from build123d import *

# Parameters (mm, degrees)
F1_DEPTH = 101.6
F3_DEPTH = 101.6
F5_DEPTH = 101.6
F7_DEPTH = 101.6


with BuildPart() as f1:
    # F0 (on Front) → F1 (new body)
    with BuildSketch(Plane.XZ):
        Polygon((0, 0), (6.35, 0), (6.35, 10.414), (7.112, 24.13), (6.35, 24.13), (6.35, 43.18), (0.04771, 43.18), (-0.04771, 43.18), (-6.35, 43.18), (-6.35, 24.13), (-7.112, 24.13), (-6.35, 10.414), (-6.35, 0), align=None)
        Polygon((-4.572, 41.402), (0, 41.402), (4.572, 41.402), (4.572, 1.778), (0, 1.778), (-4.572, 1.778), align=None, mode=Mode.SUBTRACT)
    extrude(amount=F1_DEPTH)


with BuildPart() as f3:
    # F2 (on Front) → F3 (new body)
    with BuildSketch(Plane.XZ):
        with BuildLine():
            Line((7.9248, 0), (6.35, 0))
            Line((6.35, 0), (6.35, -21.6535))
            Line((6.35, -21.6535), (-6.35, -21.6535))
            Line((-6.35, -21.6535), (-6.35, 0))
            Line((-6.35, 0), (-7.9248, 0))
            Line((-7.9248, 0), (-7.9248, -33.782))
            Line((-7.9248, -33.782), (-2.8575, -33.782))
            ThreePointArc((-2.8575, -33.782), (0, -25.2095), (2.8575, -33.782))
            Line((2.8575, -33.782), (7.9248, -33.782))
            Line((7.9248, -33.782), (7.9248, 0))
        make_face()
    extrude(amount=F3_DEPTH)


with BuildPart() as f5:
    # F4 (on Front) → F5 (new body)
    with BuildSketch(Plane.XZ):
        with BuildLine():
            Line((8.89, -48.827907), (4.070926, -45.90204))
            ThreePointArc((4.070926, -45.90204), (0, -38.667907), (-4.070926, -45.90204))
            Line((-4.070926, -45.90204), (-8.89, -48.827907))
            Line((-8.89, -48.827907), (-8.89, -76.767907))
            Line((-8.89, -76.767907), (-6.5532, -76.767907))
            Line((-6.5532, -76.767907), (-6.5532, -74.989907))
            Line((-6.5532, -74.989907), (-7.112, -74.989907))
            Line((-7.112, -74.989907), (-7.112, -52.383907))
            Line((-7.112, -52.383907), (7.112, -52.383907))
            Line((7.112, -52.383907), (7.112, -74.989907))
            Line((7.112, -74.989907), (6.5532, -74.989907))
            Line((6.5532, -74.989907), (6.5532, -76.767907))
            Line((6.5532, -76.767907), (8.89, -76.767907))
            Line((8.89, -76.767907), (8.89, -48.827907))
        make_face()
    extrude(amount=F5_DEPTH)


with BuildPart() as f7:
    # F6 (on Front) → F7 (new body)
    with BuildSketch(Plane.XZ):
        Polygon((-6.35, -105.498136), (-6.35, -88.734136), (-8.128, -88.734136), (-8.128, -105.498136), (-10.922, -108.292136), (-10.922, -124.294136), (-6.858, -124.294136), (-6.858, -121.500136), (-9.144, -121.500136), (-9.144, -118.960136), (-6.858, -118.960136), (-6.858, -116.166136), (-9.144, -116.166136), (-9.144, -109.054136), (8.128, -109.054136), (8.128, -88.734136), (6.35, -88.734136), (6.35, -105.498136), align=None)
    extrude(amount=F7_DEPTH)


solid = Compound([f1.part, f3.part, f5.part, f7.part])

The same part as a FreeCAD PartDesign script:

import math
import FreeCAD as App
import Part
import Sketcher
Q = App.Units.Quantity


def add_polygon(sketch, points):
    """Adds a closed chain of lines whose ends are joined by coincident constraints."""
    first, n = sketch.GeometryCount, len(points)
    for a, b in zip(points, points[1:] + points[:1]):
        sketch.addGeometry(Part.LineSegment(App.Vector(*a, 0), App.Vector(*b, 0)), False)
    for i in range(n):
        sketch.addConstraint(Sketcher.Constraint("Coincident", first + i, 2, first + (i + 1) % n, 1))

doc = App.newDocument("Part")
body = doc.addObject("PartDesign::Body", "Body")

sketch1 = body.newObject("Sketcher::SketchObject", "Sketch")
sketch1.AttachmentSupport = (doc.getObject("XZ_Plane"), [""])
sketch1.MapMode = "FlatFace"
add_polygon(sketch1, [(6.35, 0), (6.35, 10.414), (7.112, 24.13), (6.35, 24.13), (6.35, 43.18), (-6.35, 43.18), (-6.35, 24.13), (-7.112, 24.13), (-6.35, 10.414), (-6.35, 0)])
add_polygon(sketch1, [(-4.572, 1.778), (-4.572, 41.402), (4.572, 41.402), (4.572, 1.778)])
sketch1.addConstraint([
    Sketcher.Constraint("Vertical", 0),
    Sketcher.Constraint("Horizontal", 2),
    Sketcher.Constraint("Vertical", 3),
    Sketcher.Constraint("Horizontal", 4),
    Sketcher.Constraint("Vertical", 5),
    Sketcher.Constraint("Horizontal", 6),
    Sketcher.Constraint("Vertical", 8),
    Sketcher.Constraint("Horizontal", 9),
    Sketcher.Constraint("Vertical", 10),
    Sketcher.Constraint("Horizontal", 11),
    Sketcher.Constraint("Vertical", 12),
    Sketcher.Constraint("Horizontal", 13),
    Sketcher.Constraint("Symmetric", 8, 2, 9, 2, -1, 1),
    Sketcher.Constraint("Symmetric", 2, 2, 5, 2, -2),
    Sketcher.Constraint("Horizontal", 0, 2, 7, 2),
    Sketcher.Constraint("Vertical", 0, 2, 2, 2),
    Sketcher.Constraint("Equal", 2, 6),
    Sketcher.Constraint("DistanceX", 4, 2, 4, 1, Q("0.5 in")),
    Sketcher.Constraint("DistanceX", 2, 2, 2, 1, Q("0.03 in")),
    Sketcher.Constraint("DistanceX", 11, 1, 11, 2, Q("0.36 in")),
    Sketcher.Constraint("DistanceY", 0, 1, 0, 2, Q("0.41 in")),
    Sketcher.Constraint("DistanceY", 3, 1, 3, 2, Q("0.75 in")),
    Sketcher.Constraint("DistanceY", 10, 1, 10, 2, Q("1.56 in")),
    Sketcher.Constraint("DistanceY", -1, 1, 3, 2, Q("1.7 in")),
    Sketcher.Constraint("DistanceX", 6, 2, 10, 2, Q("0.1 in")),
    Sketcher.Constraint("DistanceY", -1, 1, 10, 2, Q("1.63 in")),
])
pad1 = body.newObject("PartDesign::Pad", "Pad")
pad1.Profile = sketch1
pad1.Length = Q("4 in")
body2 = doc.addObject("PartDesign::Body", "Body001")

sketch2 = body2.newObject("Sketcher::SketchObject", "Sketch001")
sketch2.AttachmentSupport = (doc.getObject("XZ_Plane001"), [""])
sketch2.MapMode = "FlatFace"
sketch2.addGeometry([
    Part.LineSegment(App.Vector(7.9248, 0, 0), App.Vector(6.35, 0, 0)),
    Part.LineSegment(App.Vector(6.35, 0, 0), App.Vector(6.35, -21.6535, 0)),
    Part.LineSegment(App.Vector(6.35, -21.6535, 0), App.Vector(-6.35, -21.6535, 0)),
    Part.LineSegment(App.Vector(-6.35, -21.6535, 0), App.Vector(-6.35, 0, 0)),
    Part.LineSegment(App.Vector(-6.35, 0, 0), App.Vector(-7.9248, 0, 0)),
    Part.LineSegment(App.Vector(-7.9248, 0, 0), App.Vector(-7.9248, -33.782, 0)),
    Part.LineSegment(App.Vector(-7.9248, -33.782, 0), App.Vector(-2.8575, -33.782, 0)),
    Part.ArcOfCircle(Part.Circle(App.Vector(0, -29.972, 0), App.Vector(0, 0, 1), 4.7625), math.radians(-53.130102), math.radians(233.130102)),
    Part.LineSegment(App.Vector(2.8575, -33.782, 0), App.Vector(7.9248, -33.782, 0)),
    Part.LineSegment(App.Vector(7.9248, -33.782, 0), App.Vector(7.9248, 0, 0)),
], False)
sketch2.addConstraint([
    Sketcher.Constraint("Coincident", 0, 2, 1, 1),
    Sketcher.Constraint("Coincident", 1, 2, 2, 1),
    Sketcher.Constraint("Coincident", 2, 2, 3, 1),
    Sketcher.Constraint("Coincident", 3, 2, 4, 1),
    Sketcher.Constraint("Coincident", 4, 2, 5, 1),
    Sketcher.Constraint("Coincident", 5, 2, 6, 1),
    Sketcher.Constraint("Coincident", 6, 2, 7, 2),
    Sketcher.Constraint("Coincident", 7, 1, 8, 1),
    Sketcher.Constraint("Coincident", 8, 2, 9, 1),
    Sketcher.Constraint("Coincident", 9, 2, 0, 1),
    Sketcher.Constraint("Horizontal", 0),
    Sketcher.Constraint("Vertical", 1),
    Sketcher.Constraint("Horizontal", 2),
    Sketcher.Constraint("Vertical", 3),
    Sketcher.Constraint("Horizontal", 4),
    Sketcher.Constraint("Vertical", 5),
    Sketcher.Constraint("Horizontal", 6),
    Sketcher.Constraint("Horizontal", 8),
    Sketcher.Constraint("Vertical", 9),
    Sketcher.Constraint("Symmetric", 0, 2, 3, 2, -1, 1),
    Sketcher.Constraint("Symmetric", 6, 2, 7, 1, -2),
    Sketcher.Constraint("Symmetric", 4, 2, 9, 2, -2),
    Sketcher.Constraint("DistanceX", 2, 2, 2, 1, Q("0.5 in")),
    Sketcher.Constraint("Radius", 7, Q("0.1875 in")),
    Sketcher.Constraint("DistanceY", 5, 2, 5, 1, Q("1.33 in")),
    Sketcher.Constraint("DistanceX", 0, 2, 0, 1, Q("0.062 in")),
    Sketcher.Constraint("DistanceY", 7, 3, -1, 1, Q("1.18 in")),
    Sketcher.Constraint("DistanceY", 1, 2, 1, 1, Q("0.8525 in")),
])
pad2 = body2.newObject("PartDesign::Pad", "Pad001")
pad2.Profile = sketch2
pad2.Length = Q("4 in")
body3 = doc.addObject("PartDesign::Body", "Body002")

sketch3 = body3.newObject("Sketcher::SketchObject", "Sketch002")
sketch3.AttachmentSupport = (doc.getObject("XZ_Plane002"), [""])
sketch3.MapMode = "FlatFace"
sketch3.addGeometry([
    Part.LineSegment(App.Vector(8.89, -48.827907, 0), App.Vector(4.070926, -45.90204, 0)),
    Part.ArcOfCircle(Part.Circle(App.Vector(0, -43.430407, 0), App.Vector(0, 0, 1), 4.7625), math.radians(-31.263724), math.radians(211.263724)),
    Part.LineSegment(App.Vector(-4.070926, -45.90204, 0), App.Vector(-8.89, -48.827907, 0)),
    Part.LineSegment(App.Vector(-8.89, -48.827907, 0), App.Vector(-8.89, -76.767907, 0)),
    Part.LineSegment(App.Vector(-8.89, -76.767907, 0), App.Vector(-6.5532, -76.767907, 0)),
    Part.LineSegment(App.Vector(-6.5532, -76.767907, 0), App.Vector(-6.5532, -74.989907, 0)),
    Part.LineSegment(App.Vector(-6.5532, -74.989907, 0), App.Vector(-7.112, -74.989907, 0)),
    Part.LineSegment(App.Vector(-7.112, -74.989907, 0), App.Vector(-7.112, -52.383907, 0)),
    Part.LineSegment(App.Vector(-7.112, -52.383907, 0), App.Vector(7.112, -52.383907, 0)),
    Part.LineSegment(App.Vector(7.112, -52.383907, 0), App.Vector(7.112, -74.989907, 0)),
    Part.LineSegment(App.Vector(7.112, -74.989907, 0), App.Vector(6.5532, -74.989907, 0)),
    Part.LineSegment(App.Vector(6.5532, -74.989907, 0), App.Vector(6.5532, -76.767907, 0)),
    Part.LineSegment(App.Vector(6.5532, -76.767907, 0), App.Vector(8.89, -76.767907, 0)),
    Part.LineSegment(App.Vector(8.89, -76.767907, 0), App.Vector(8.89, -48.827907, 0)),
], False)
sketch3.addConstraint([
    Sketcher.Constraint("Coincident", 0, 2, 1, 1),
    Sketcher.Constraint("Coincident", 1, 2, 2, 1),
    Sketcher.Constraint("Coincident", 2, 2, 3, 1),
    Sketcher.Constraint("Coincident", 3, 2, 4, 1),
    Sketcher.Constraint("Coincident", 4, 2, 5, 1),
    Sketcher.Constraint("Coincident", 5, 2, 6, 1),
    Sketcher.Constraint("Coincident", 6, 2, 7, 1),
    Sketcher.Constraint("Coincident", 7, 2, 8, 1),
    Sketcher.Constraint("Coincident", 8, 2, 9, 1),
    Sketcher.Constraint("Coincident", 9, 2, 10, 1),
    Sketcher.Constraint("Coincident", 10, 2, 11, 1),
    Sketcher.Constraint("Coincident", 11, 2, 12, 1),
    Sketcher.Constraint("Coincident", 12, 2, 13, 1),
    Sketcher.Constraint("Coincident", 13, 2, 0, 1),
    Sketcher.Constraint("Vertical", 3),
    Sketcher.Constraint("Horizontal", 4),
    Sketcher.Constraint("Vertical", 5),
    Sketcher.Constraint("Horizontal", 6),
    Sketcher.Constraint("Vertical", 7),
    Sketcher.Constraint("Horizontal", 8),
    Sketcher.Constraint("Vertical", 9),
    Sketcher.Constraint("Horizontal", 10),
    Sketcher.Constraint("Vertical", 11),
    Sketcher.Constraint("Horizontal", 12),
    Sketcher.Constraint("Vertical", 13),
    Sketcher.Constraint("Symmetric", 0, 2, 1, 2, -2),
    Sketcher.Constraint("Symmetric", 6, 2, 9, 2, -2),
    Sketcher.Constraint("Symmetric", 4, 2, 11, 2, -2),
    Sketcher.Constraint("Symmetric", 2, 2, 13, 2, -2),
    Sketcher.Constraint("DistanceY", 3, 2, 3, 1, Q("1.1 in")),
    Sketcher.Constraint("Radius", 1, Q("0.1875 in")),
    Sketcher.Constraint("DistanceX", 8, 1, 8, 2, Q("0.56 in")),
    Sketcher.Constraint("DistanceY", 5, 1, 5, 2, Q("0.07 in")),
    Sketcher.Constraint("DistanceY", 7, 1, 7, 2, Q("0.89 in")),
    Sketcher.Constraint("DistanceX", 4, 1, 4, 2, Q("0.092 in")),
    Sketcher.Constraint("DistanceX", 6, 2, 6, 1, Q("0.022 in")),
    Sketcher.Constraint("DistanceY", 3, 2, 1, 3, Q("1.3125 in")),
    Sketcher.Constraint("DistanceY", 0, 2, -1, 1, Q("45.90204 mm")),
    Sketcher.Constraint("DistanceY", 1, 3, -1, 1, Q("43.430407 mm")),
])
pad3 = body3.newObject("PartDesign::Pad", "Pad002")
pad3.Profile = sketch3
pad3.Length = Q("4 in")
body4 = doc.addObject("PartDesign::Body", "Body003")

sketch4 = body4.newObject("Sketcher::SketchObject", "Sketch003")
sketch4.AttachmentSupport = (doc.getObject("XZ_Plane003"), [""])
sketch4.MapMode = "FlatFace"
add_polygon(sketch4, [(-6.35, -105.498136), (-6.35, -88.734136), (-8.128, -88.734136), (-8.128, -105.498136), (-10.922, -108.292136), (-10.922, -124.294136), (-6.858, -124.294136), (-6.858, -121.500136), (-9.144, -121.500136), (-9.144, -118.960136), (-6.858, -118.960136), (-6.858, -116.166136), (-9.144, -116.166136), (-9.144, -109.054136), (8.128, -109.054136), (8.128, -88.734136), (6.35, -88.734136), (6.35, -105.498136)])
sketch4.addConstraint([
    Sketcher.Constraint("Vertical", 0),
    Sketcher.Constraint("Horizontal", 1),
    Sketcher.Constraint("Vertical", 2),
    Sketcher.Constraint("Vertical", 4),
    Sketcher.Constraint("Horizontal", 5),
    Sketcher.Constraint("Vertical", 6),
    Sketcher.Constraint("Horizontal", 7),
    Sketcher.Constraint("Vertical", 8),
    Sketcher.Constraint("Horizontal", 9),
    Sketcher.Constraint("Vertical", 10),
    Sketcher.Constraint("Horizontal", 11),
    Sketcher.Constraint("Vertical", 12),
    Sketcher.Constraint("Horizontal", 13),
    Sketcher.Constraint("Vertical", 14),
    Sketcher.Constraint("Horizontal", 15),
    Sketcher.Constraint("Vertical", 16),
    Sketcher.Constraint("Horizontal", 17),
    Sketcher.Constraint("Symmetric", 1, 2, 14, 2, -2),
    Sketcher.Constraint("Horizontal", 2, 2, 16, 2),
    Sketcher.Constraint("Vertical", 6, 2, 9, 2),
    Sketcher.Constraint("Vertical", 8, 2, 11, 2),
    Sketcher.Constraint("Equal", 1, 15),
    Sketcher.Constraint("Equal", 6, 10),
    Sketcher.Constraint("DistanceX", 17, 2, 17, 1, Q("0.5 in")),
    Sketcher.Constraint("DistanceY", 8, 1, 8, 2, Q("0.1 in")),
    Sketcher.Constraint("DistanceY", 14, 1, 14, 2, Q("0.8 in")),
    Sketcher.Constraint("Angle", 3, Q("-135 deg")),
    Sketcher.Constraint("DistanceX", 1, 2, 1, 1, Q("0.07 in")),
    Sketcher.Constraint("DistanceX", 5, 1, 5, 2, Q("0.16 in")),
    Sketcher.Constraint("DistanceX", 7, 2, 7, 1, Q("0.09 in")),
    Sketcher.Constraint("DistanceX", 13, 1, 13, 2, Q("0.68 in")),
    Sketcher.Constraint("DistanceY", 0, 1, 0, 2, Q("0.66 in")),
    Sketcher.Constraint("DistanceY", 4, 2, 4, 1, Q("0.63 in")),
    Sketcher.Constraint("DistanceY", 6, 1, 6, 2, Q("0.11 in")),
    Sketcher.Constraint("DistanceY", 0, 2, -1, 1, Q("88.734136 mm")),
])
pad4 = body4.newObject("PartDesign::Pad", "Pad003")
pad4.Profile = sketch4
pad4.Length = Q("4 in")

doc.recompute()
